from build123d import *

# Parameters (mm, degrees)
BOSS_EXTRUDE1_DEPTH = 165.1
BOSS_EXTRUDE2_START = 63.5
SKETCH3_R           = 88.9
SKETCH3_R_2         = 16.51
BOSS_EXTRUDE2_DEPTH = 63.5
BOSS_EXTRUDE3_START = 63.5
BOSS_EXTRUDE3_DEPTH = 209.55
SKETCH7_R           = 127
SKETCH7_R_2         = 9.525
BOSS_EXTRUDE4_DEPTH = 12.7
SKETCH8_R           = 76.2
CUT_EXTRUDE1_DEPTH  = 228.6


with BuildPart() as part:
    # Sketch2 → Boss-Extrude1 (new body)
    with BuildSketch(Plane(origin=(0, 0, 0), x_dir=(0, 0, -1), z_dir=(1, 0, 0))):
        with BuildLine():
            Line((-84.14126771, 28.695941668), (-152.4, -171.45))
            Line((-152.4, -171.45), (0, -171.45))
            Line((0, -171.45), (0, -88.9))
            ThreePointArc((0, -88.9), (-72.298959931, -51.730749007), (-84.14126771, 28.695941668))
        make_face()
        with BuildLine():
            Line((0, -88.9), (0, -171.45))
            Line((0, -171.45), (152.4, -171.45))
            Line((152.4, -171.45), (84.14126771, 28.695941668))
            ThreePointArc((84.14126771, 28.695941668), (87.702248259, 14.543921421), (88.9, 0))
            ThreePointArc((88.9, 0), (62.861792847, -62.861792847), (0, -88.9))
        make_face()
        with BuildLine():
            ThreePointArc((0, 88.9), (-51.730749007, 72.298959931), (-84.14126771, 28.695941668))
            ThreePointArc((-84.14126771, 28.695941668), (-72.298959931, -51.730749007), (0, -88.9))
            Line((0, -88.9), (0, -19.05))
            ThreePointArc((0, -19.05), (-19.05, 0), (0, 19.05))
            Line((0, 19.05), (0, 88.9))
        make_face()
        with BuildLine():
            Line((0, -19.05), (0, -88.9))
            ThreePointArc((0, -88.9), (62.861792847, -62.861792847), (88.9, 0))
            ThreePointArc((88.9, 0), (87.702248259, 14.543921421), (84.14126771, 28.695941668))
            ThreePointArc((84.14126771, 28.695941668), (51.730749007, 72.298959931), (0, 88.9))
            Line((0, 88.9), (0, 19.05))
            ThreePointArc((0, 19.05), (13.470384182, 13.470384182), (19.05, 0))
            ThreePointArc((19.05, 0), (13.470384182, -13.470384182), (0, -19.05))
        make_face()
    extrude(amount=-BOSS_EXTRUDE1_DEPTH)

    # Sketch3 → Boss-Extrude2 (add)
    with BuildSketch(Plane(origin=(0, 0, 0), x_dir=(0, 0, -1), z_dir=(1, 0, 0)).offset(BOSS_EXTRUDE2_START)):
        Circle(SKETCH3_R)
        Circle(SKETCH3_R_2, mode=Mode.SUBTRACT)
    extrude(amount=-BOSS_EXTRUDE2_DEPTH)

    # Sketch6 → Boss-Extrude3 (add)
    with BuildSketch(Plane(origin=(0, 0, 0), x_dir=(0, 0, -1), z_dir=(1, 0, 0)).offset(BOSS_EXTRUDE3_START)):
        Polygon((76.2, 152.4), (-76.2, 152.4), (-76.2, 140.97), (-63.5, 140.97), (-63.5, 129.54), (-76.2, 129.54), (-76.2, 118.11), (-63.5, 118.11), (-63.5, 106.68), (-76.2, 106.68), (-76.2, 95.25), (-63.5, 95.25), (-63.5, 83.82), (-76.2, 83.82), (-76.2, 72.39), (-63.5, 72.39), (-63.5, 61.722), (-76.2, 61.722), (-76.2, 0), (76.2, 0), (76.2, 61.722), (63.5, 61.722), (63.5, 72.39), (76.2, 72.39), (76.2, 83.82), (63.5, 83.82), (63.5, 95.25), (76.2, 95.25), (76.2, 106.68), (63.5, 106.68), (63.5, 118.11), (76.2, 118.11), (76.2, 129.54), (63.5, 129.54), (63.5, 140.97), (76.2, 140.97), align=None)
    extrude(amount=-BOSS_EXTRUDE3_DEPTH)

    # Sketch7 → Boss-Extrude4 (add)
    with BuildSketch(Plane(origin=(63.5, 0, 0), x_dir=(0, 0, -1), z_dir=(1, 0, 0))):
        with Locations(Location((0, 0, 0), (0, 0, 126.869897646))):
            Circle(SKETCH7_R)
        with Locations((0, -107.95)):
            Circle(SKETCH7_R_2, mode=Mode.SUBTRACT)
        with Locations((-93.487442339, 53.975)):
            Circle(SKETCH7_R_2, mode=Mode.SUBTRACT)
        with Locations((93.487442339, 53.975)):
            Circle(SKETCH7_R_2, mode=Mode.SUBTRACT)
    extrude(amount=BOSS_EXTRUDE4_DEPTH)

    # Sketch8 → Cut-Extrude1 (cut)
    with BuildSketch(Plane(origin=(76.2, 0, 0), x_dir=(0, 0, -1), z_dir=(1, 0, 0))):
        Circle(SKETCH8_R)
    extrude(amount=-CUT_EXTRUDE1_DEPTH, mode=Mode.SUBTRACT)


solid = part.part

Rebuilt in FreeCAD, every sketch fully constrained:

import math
import FreeCAD as App
import Part
import Sketcher
Q = App.Units.Quantity


def add_polygon(sketch, points):
    """Adds a closed chain of lines whose ends are joined by coincident constraints."""
    first, n = sketch.GeometryCount, len(points)
    for a, b in zip(points, points[1:] + points[:1]):
        sketch.addGeometry(Part.LineSegment(App.Vector(*a, 0), App.Vector(*b, 0)), False)
    for i in range(n):
        sketch.addConstraint(Sketcher.Constraint("Coincident", first + i, 2, first + (i + 1) % n, 1))

doc = App.newDocument("Part")
body = doc.addObject("PartDesign::Body", "Body")

sketch1 = body.newObject("Sketcher::SketchObject", "Sketch")
sketch1.AttachmentSupport = (doc.getObject("YZ_Plane"), [""])
sketch1.MapMode = "FlatFace"
sketch1.addGeometry(Part.ArcOfCircle(Part.Circle(App.Vector(0, 0, 0), App.Vector(0, 0, 1), 89), math.radians(-71), math.radians(0)), False)
sketch1.addGeometry(Part.ArcOfCircle(Part.Circle(App.Vector(0, 0, 0), App.Vector(0, 0, 1), 89), math.radians(0), math.radians(71)), False)
sketch1.addGeometry(Part.LineSegment(App.Vector(29, 84, 0), App.Vector(-171, 152, 0)), False)
sketch1.addGeometry(Part.LineSegment(App.Vector(-171, 152, 0), App.Vector(-171, -152, 0)), False)
sketch1.addGeometry(Part.LineSegment(App.Vector(-171, -152, 0), App.Vector(29, -84, 0)), False)
sketch1.addGeometry(Part.ArcOfCircle(Part.Circle(App.Vector(0, 0, 0), App.Vector(0, 0, 1), 19), math.radians(-90), math.radians(0)), False)
sketch1.addGeometry(Part.ArcOfCircle(Part.Circle(App.Vector(0, 0, 0), App.Vector(0, 0, 1), 19), math.radians(180), math.radians(270)), False)
sketch1.addGeometry(Part.ArcOfCircle(Part.Circle(App.Vector(0, 0, 0), App.Vector(0, 0, 1), 19), math.radians(0), math.radians(180)), False)
sketch1.addConstraint(Sketcher.Constraint("Tangent", 0, 2, 1, 1))
sketch1.addConstraint(Sketcher.Constraint("Tangent", 1, 2, 2, 1))
sketch1.addConstraint(Sketcher.Constraint("Coincident", 2, 2, 3, 1))
sketch1.addConstraint(Sketcher.Constraint("Coincident", 3, 2, 4, 1))
sketch1.addConstraint(Sketcher.Constraint("Tangent", 4, 2, 0, 1))
sketch1.addConstraint(Sketcher.Constraint("Tangent", 5, 1, 6, 2))
sketch1.addConstraint(Sketcher.Constraint("Tangent", 6, 1, 7, 2))
sketch1.addConstraint(Sketcher.Constraint("Tangent", 7, 1, 5, 2))
sketch1.addConstraint(Sketcher.Constraint("Vertical", 3))
sketch1.addConstraint(Sketcher.Constraint("Coincident", 0, 3, -1, 1))
sketch1.addConstraint(Sketcher.Constraint("Coincident", 5, 3, -1, 1))
sketch1.addConstraint(Sketcher.Constraint("Equal", 0, 1))
sketch1.addConstraint(Sketcher.Constraint("PointOnObject", 0, 2, -1))
sketch1.addConstraint(Sketcher.Constraint("PointOnObject", 5, 1, -2))
sketch1.addConstraint(Sketcher.Constraint("PointOnObject", 6, 1, -1))
sketch1.addConstraint(Sketcher.Constraint("PointOnObject", 7, 1, -1))
sketch1.addConstraint(Sketcher.Constraint("Vertical", 1, 2, 4, 2))
sketch1.addConstraint(Sketcher.Constraint("Radius", 0, Q("3.5 in")))
sketch1.addConstraint(Sketcher.Constraint("DistanceY", 3, 2, 3, 1, Q("12 in")))
sketch1.addConstraint(Sketcher.Constraint("Radius", 5, Q("0.75 in")))
sketch1.addConstraint(Sketcher.Constraint("DistanceX", 2, 2, -1, 1, Q("6.75 in")))
pad1 = body.newObject("PartDesign::Pad", "Pad")
pad1.Profile = sketch1
pad1.Length = Q("6.5 in")
pad1.Reversed = True

sketch2 = body.newObject("Sketcher::SketchObject", "Sketch001")
sketch2.AttachmentSupport = (doc.getObject("YZ_Plane"), [""])
sketch2.MapMode = "FlatFace"
sketch2.AttachmentOffset = App.Placement(App.Vector(0, 0, 2.5 * 25.4), App.Rotation())
sketch2.addGeometry(Part.Circle(App.Vector(0, 0, 0), App.Vector(0, 0, 1), 89), False)
sketch2.addGeometry(Part.Circle(App.Vector(0, 0, 0), App.Vector(0, 0, 1), 17), False)
sketch2.addConstraint(Sketcher.Constraint("Coincident", 0, 3, -1, 1))
sketch2.addConstraint(Sketcher.Constraint("Coincident", 1, 3, -1, 1))
sketch2.addConstraint(Sketcher.Constraint("Diameter", 0, Q("7 in")))
sketch2.addConstraint(Sketcher.Constraint("Diameter", 1, Q("1.3 in")))
pad2 = body.newObject("PartDesign::Pad", "Pad001")
pad2.Profile = sketch2
pad2.Length = Q("2.5 in")
pad2.Reversed = True

sketch3 = body.newObject("Sketcher::SketchObject", "Sketch002")
sketch3.AttachmentSupport = (doc.getObject("YZ_Plane"), [""])
sketch3.MapMode = "FlatFace"
sketch3.AttachmentOffset = App.Placement(App.Vector(0, 0, 2.5 * 25.4), App.Rotation())
add_polygon(sketch3, [(152, -76), (152, 76), (141, 76), (141, 64), (130, 64), (130, 76), (118, 76), (118, 64), (107, 64), (107, 76), (95, 76), (95, 64), (84, 64), (84, 76), (72, 76), (72, 64), (62, 64), (62, 76), (0, 76), (0, -76), (62, -76), (62, -64), (72, -64), (72, -76), (84, -76), (84, -64), (95, -64), (95, -76), (107, -76), (107, -64), (118, -64), (118, -76), (130, -76), (130, -64), (141, -64), (141, -76)])
sketch3.addConstraint(Sketcher.Constraint("Vertical", 0))
sketch3.addConstraint(Sketcher.Constraint("Horizontal", 1))
sketch3.addConstraint(Sketcher.Constraint("Vertical", 2))
sketch3.addConstraint(Sketcher.Constraint("Horizontal", 3))
sketch3.addConstraint(Sketcher.Constraint("Vertical", 4))
sketch3.addConstraint(Sketcher.Constraint("Horizontal", 5))
sketch3.addConstraint(Sketcher.Constraint("Vertical", 6))
sketch3.addConstraint(Sketcher.Constraint("Horizontal", 7))
sketch3.addConstraint(Sketcher.Constraint("Vertical", 8))
sketch3.addConstraint(Sketcher.Constraint("Horizontal", 9))
sketch3.addConstraint(Sketcher.Constraint("Vertical", 10))
sketch3.addConstraint(Sketcher.Constraint("Horizontal", 11))
sketch3.addConstraint(Sketcher.Constraint("Vertical", 12))
sketch3.addConstraint(Sketcher.Constraint("Horizontal", 13))
sketch3.addConstraint(Sketcher.Constraint("Vertical", 14))
sketch3.addConstraint(Sketcher.Constraint("Horizontal", 15))
sketch3.addConstraint(Sketcher.Constraint("Vertical", 16))
sketch3.addConstraint(Sketcher.Constraint("Horizontal", 17))
sketch3.addConstraint(Sketcher.Constraint("Vertical", 18))
sketch3.addConstraint(Sketcher.Constraint("Horizontal", 19))
sketch3.addConstraint(Sketcher.Constraint("Vertical", 20))
sketch3.addConstraint(Sketcher.Constraint("Horizontal", 21))
sketch3.addConstraint(Sketcher.Constraint("Vertical", 22))
sketch3.addConstraint(Sketcher.Constraint("Horizontal", 23))
sketch3.addConstraint(Sketcher.Constraint("Vertical", 24))
sketch3.addConstraint(Sketcher.Constraint("Horizontal", 25))
sketch3.addConstraint(Sketcher.Constraint("Vertical", 26))
sketch3.addConstraint(Sketcher.Constraint("Horizontal", 27))
sketch3.addConstraint(Sketcher.Constraint("Vertical", 28))
sketch3.addConstraint(Sketcher.Constraint("Horizontal", 29))
sketch3.addConstraint(Sketcher.Constraint("Vertical", 30))
sketch3.addConstraint(Sketcher.Constraint("Horizontal", 31))
sketch3.addConstraint(Sketcher.Constraint("Vertical", 32))
sketch3.addConstraint(Sketcher.Constraint("Horizontal", 33))
sketch3.addConstraint(Sketcher.Constraint("Vertical", 34))
sketch3.addConstraint(Sketcher.Constraint("Horizontal", 35))
sketch3.addConstraint(Sketcher.Constraint("Symmetric", 17, 2, 18, 2, -1, 1))
sketch3.addConstraint(Sketcher.Constraint("Symmetric", 15, 2, 20, 2, -1))
sketch3.addConstraint(Sketcher.Constraint("Symmetric", 13, 2, 22, 2, -1))
sketch3.addConstraint(Sketcher.Constraint("Symmetric", 11, 2, 24, 2, -1))
sketch3.addConstraint(Sketcher.Constraint("Symmetric", 9, 2, 26, 2, -1))
sketch3.addConstraint(Sketcher.Constraint("Symmetric", 7, 2, 28, 2, -1))
sketch3.addConstraint(Sketcher.Constraint("Symmetric", 5, 2, 30, 2, -1))
sketch3.addConstraint(Sketcher.Constraint("Symmetric", 3, 2, 32, 2, -1))
sketch3.addConstraint(Sketcher.Constraint("Symmetric", 1, 2, 34, 2, -1))
sketch3.addConstraint(Sketcher.Constraint("Horizontal", 1, 2, 4, 2))
sketch3.addConstraint(Sketcher.Constraint("Horizontal", 3, 2, 6, 2))
sketch3.addConstraint(Sketcher.Constraint("Horizontal", 5, 2, 8, 2))
sketch3.addConstraint(Sketcher.Constraint("Horizontal", 7, 2, 10, 2))
sketch3.addConstraint(Sketcher.Constraint("Horizontal", 9, 2, 12, 2))
sketch3.addConstraint(Sketcher.Constraint("Horizontal", 11, 2, 14, 2))
sketch3.addConstraint(Sketcher.Constraint("Horizontal", 13, 2, 16, 2))
sketch3.addConstraint(Sketcher.Constraint("Equal", 1, 3))
sketch3.addConstraint(Sketcher.Constraint("Equal", 3, 5))
sketch3.addConstraint(Sketcher.Constraint("Equal", 5, 7))
sketch3.addConstraint(Sketcher.Constraint("Equal", 7, 9))
sketch3.addConstraint(Sketcher.Constraint("Equal", 9, 11))
sketch3.addConstraint(Sketcher.Constraint("Equal", 11, 13))
sketch3.addConstraint(Sketcher.Constraint("DistanceY", 0, 1, 0, 2, Q("6 in")))
sketch3.addConstraint(Sketcher.Constraint("DistanceY", 2, 2, 2, 1, Q("0.5 in")))
sketch3.addConstraint(Sketcher.Constraint("DistanceX", -1, 1, 0, 2, Q("6 in")))
sketch3.addConstraint(Sketcher.Constraint("DistanceX", 1, 2, 1, 1, Q("0.45 in")))
sketch3.addConstraint(Sketcher.Constraint("DistanceX", 15, 2, 15, 1, Q("0.42 in")))
pad3 = body.newObject("PartDesign::Pad", "Pad002")
pad3.Profile = sketch3
pad3.Length = Q("8.25 in")
pad3.Reversed = True

sketch4 = body.newObject("Sketcher::SketchObject", "Sketch003")
sketch4.AttachmentSupport = (doc.getObject("YZ_Plane"), [""])
sketch4.MapMode = "FlatFace"
sketch4.AttachmentOffset = App.Placement(App.Vector(0, 0, 2.5 * 25.4), App.Rotation())
sketch4.addGeometry(Part.Circle(App.Vector(0, 0, 0), App.Vector(0, 0, 1), 127), False)
sketch4.addGeometry(Part.Circle(App.Vector(54, -93, 0), App.Vector(0, 0, 1), 10), False)
sketch4.addGeometry(Part.Circle(App.Vector(-108, 0, 0), App.Vector(0, 0, 1), 10), False)
sketch4.addGeometry(Part.Circle(App.Vector(54, 93, 0), App.Vector(0, 0, 1), 10), False)
sketch4.addConstraint(Sketcher.Constraint("Coincident", 0, 3, -1, 1))
sketch4.addConstraint(Sketcher.Constraint("Equal", 1, 2))
sketch4.addConstraint(Sketcher.Constraint("Equal", 2, 3))
sketch4.addConstraint(Sketcher.Constraint("Symmetric", 1, 3, 3, 3, -1))
sketch4.addConstraint(Sketcher.Constraint("PointOnObject", 2, 3, -1))
sketch4.addConstraint(Sketcher.Constraint("Diameter", 0, Q("10 in")))
sketch4.addConstraint(Sketcher.Constraint("Diameter", 1, Q("0.75 in")))
sketch4.addConstraint(Sketcher.Constraint("DistanceX", 2, 3, -1, 1, Q("4.25 in")))
sketch4.addConstraint(Sketcher.Constraint("DistanceX", -1, 1, 1, 3, Q("2.125 in")))
sketch4.addConstraint(Sketcher.Constraint("DistanceY", 1, 3, -1, 1, Q("93.487442 mm")))
pad4 = body.newObject("PartDesign::Pad", "Pad003")
pad4.Profile = sketch4
pad4.Length = Q("0.5 in")

sketch5 = body.newObject("Sketcher::SketchObject", "Sketch004")
sketch5.AttachmentSupport = (doc.getObject("YZ_Plane"), [""])
sketch5.MapMode = "FlatFace"
sketch5.AttachmentOffset = App.Placement(App.Vector(0, 0, 3 * 25.4), App.Rotation())
sketch5.addGeometry(Part.Circle(App.Vector(0, 0, 0), App.Vector(0, 0, 1), 76), False)
sketch5.addConstraint(Sketcher.Constraint("Coincident", 0, 3, -1, 1))
sketch5.addConstraint(Sketcher.Constraint("Diameter", 0, Q("6 in")))
pocket1 = body.newObject("PartDesign::Pocket", "Pocket")
pocket1.Profile = sketch5
pocket1.Length = Q("9 in")

doc.recompute()
